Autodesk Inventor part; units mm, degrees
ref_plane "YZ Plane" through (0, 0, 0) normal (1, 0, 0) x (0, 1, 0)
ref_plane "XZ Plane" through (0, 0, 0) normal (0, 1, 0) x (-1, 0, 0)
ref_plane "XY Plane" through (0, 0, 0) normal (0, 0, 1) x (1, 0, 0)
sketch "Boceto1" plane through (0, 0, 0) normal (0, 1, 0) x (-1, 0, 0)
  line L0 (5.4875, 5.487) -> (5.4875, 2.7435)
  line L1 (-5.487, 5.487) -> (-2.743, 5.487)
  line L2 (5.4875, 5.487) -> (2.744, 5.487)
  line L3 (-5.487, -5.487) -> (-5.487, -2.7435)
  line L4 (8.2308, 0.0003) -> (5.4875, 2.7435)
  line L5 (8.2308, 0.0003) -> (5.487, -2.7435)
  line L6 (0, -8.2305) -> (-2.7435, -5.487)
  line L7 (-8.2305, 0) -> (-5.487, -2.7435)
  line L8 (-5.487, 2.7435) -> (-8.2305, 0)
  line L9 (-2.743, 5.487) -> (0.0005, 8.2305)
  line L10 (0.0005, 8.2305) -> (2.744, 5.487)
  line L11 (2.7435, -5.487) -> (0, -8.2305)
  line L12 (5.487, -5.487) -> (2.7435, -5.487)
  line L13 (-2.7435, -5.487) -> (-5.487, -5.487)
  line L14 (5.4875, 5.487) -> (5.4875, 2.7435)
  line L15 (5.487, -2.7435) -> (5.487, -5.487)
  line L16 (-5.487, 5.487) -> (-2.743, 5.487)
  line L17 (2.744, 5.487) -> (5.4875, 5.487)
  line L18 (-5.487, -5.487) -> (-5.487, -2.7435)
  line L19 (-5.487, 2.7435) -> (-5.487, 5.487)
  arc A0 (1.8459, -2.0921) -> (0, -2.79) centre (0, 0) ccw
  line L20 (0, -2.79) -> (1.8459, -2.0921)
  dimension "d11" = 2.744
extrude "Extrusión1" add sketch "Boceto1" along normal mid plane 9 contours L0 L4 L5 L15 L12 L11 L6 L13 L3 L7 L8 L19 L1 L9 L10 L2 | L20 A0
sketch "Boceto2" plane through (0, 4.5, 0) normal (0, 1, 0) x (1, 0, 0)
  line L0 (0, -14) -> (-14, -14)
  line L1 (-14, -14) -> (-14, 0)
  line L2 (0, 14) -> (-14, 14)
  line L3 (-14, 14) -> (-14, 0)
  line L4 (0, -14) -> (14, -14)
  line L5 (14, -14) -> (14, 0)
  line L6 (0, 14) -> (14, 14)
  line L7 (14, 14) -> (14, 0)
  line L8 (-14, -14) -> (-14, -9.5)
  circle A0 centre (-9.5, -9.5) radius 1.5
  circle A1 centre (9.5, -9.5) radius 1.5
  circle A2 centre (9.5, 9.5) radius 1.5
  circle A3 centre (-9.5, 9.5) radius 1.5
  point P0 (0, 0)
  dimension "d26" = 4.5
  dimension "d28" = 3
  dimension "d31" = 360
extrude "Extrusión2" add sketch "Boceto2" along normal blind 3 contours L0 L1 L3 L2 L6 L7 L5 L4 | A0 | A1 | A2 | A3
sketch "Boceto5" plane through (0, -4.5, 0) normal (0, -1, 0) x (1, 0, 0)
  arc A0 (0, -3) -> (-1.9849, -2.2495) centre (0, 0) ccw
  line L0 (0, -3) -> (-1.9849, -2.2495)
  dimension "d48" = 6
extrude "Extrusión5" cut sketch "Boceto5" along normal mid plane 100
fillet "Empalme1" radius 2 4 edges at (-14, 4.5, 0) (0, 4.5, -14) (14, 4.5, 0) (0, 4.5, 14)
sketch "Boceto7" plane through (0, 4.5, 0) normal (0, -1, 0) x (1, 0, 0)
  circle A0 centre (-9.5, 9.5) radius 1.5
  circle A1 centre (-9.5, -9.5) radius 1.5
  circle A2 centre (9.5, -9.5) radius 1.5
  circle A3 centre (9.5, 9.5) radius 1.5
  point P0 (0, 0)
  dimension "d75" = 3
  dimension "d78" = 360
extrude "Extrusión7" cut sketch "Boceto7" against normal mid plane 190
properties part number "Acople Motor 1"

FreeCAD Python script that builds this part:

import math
import FreeCAD as App
import Part
import Sketcher

V = App.Vector
Q = App.Units.Quantity


def edges_at(feature, points):
    """Names of the edges that pass closest to the given points."""
    edges = feature.Shape.Edges
    near = lambda p: min(range(len(edges)), key=lambda i: edges[i].distToShape(Part.Vertex(*p))[0])
    return sorted({f"Edge{near(p) + 1}" for p in points})


def add_polygon(sketch, points):
    """Adds a closed chain of lines whose ends are joined by coincident constraints."""
    first, n = sketch.GeometryCount, len(points)
    for a, b in zip(points, points[1:] + points[:1]):
        sketch.addGeometry(Part.LineSegment(App.Vector(*a, 0), App.Vector(*b, 0)), False)
    for i in range(n):
        sketch.addConstraint(Sketcher.Constraint("Coincident", first + i, 2, first + (i + 1) % n, 1))

doc = App.newDocument("Part")
body = doc.addObject("PartDesign::Body", "Body")

sketch1 = body.newObject("Sketcher::SketchObject", "Sketch")
sketch1.AttachmentSupport = (doc.getObject("XZ_Plane"), [""])
sketch1.MapMode = "FlatFace"
add_polygon(sketch1, [(-5.5, 2.7), (-5.5, 5.5), (-2.7, 5.5), (0, 8.2), (2.7, 5.5), (5.5, 5.5), (5.5, 2.7), (8.2, 0), (5.5, -2.7), (5.5, -5.5), (2.7, -5.5), (0, -8.2), (-2.7, -5.5), (-5.5, -5.5), (-5.5, -2.7), (-8.2, 0)])
sketch1.addConstraint([
    Sketcher.Constraint("Vertical", 0),
    Sketcher.Constraint("Horizontal", 1),
    Sketcher.Constraint("Horizontal", 4),
    Sketcher.Constraint("Vertical", 5),
    Sketcher.Constraint("Vertical", 8),
    Sketcher.Constraint("Horizontal", 9),
    Sketcher.Constraint("Horizontal", 12),
    Sketcher.Constraint("Vertical", 13),
    Sketcher.Constraint("Symmetric", 4, 2, 12, 2, -1, 1),
    Sketcher.Constraint("Symmetric", 9, 2, 11, 2, -2),
    Sketcher.Constraint("Symmetric", 7, 2, 13, 2, -2),
    Sketcher.Constraint("PointOnObject", 6, 2, -1),
    Sketcher.Constraint("PointOnObject", 10, 2, -2),
    Sketcher.Constraint("Perpendicular", 2, 3),
    Sketcher.Constraint("Parallel", 3, 6),
    Sketcher.Constraint("Perpendicular", 6, 7),
    Sketcher.Constraint("Parallel", 7, 10),
    Sketcher.Constraint("Perpendicular", 10, 11),
    Sketcher.Constraint("Parallel", 11, 14),
    Sketcher.Constraint("Perpendicular", 14, 15),
    Sketcher.Constraint("Horizontal", 1, 2, 3, 2),
    Sketcher.Constraint("Horizontal", 5, 2, 15, 2),
    Sketcher.Constraint("Equal", 1, 9),
    Sketcher.Constraint("Equal", 12, 0),
    Sketcher.Constraint("Equal", 3, 6),
    Sketcher.Constraint("Equal", 7, 10),
    Sketcher.Constraint("DistanceX", 4, 1, 4, 2, Q("2.744 mm")),
    Sketcher.Constraint("DistanceX", 1, 1, 1, 2, Q("2.7435 mm")),
    Sketcher.Constraint("DistanceX", 1, 2, -1, 1, Q("2.744 mm")),
])
pad1 = body.newObject("PartDesign::Pad", "Pad")
pad1.Profile = sketch1
pad1.Length = 9
pad1.Midplane = True

sketch2 = body.newObject("Sketcher::SketchObject", "Sketch001")
sketch2.AttachmentSupport = (doc.getObject("XZ_Plane"), [""])
sketch2.MapMode = "FlatFace"
sketch2.AttachmentOffset = App.Placement(V(0, 0, -4.5), App.Rotation())
add_polygon(sketch2, [(-14, 14), (14, 14), (14, -14), (-14, -14)])
sketch2.addConstraint([
    Sketcher.Constraint("Horizontal", 0),
    Sketcher.Constraint("Vertical", 1),
    Sketcher.Constraint("Horizontal", 2),
    Sketcher.Constraint("Vertical", 3),
    Sketcher.Constraint("Symmetric", 0, 2, 2, 2, -1, 1),
    Sketcher.Constraint("Equal", 2, 1),
    Sketcher.Constraint("DistanceX", 0, 1, 0, 2, Q("28 mm")),
])
pad2 = body.newObject("PartDesign::Pad", "Pad001")
pad2.Profile = sketch2
pad2.Length = 3
pad2.Reversed = True

sketch3 = body.newObject("Sketcher::SketchObject", "Sketch002")
sketch3.AttachmentSupport = (doc.getObject("XZ_Plane"), [""])
sketch3.MapMode = "FlatFace"
sketch3.AttachmentOffset = App.Placement(V(0, 0, 4.5), App.Rotation())
sketch3.addGeometry([
    Part.LineSegment(V(-2, -2.2, 0), V(0, -3, 0)),
    Part.ArcOfCircle(Part.Circle(V(0, 0, 0), V(0, 0, 1), 3), math.radians(-90), math.radians(229)),
], False)
sketch3.addConstraint([
    Sketcher.Constraint("Coincident", 0, 1, 1, 2),
    Sketcher.Constraint("Coincident", 1, 1, 0, 2),
    Sketcher.Constraint("Coincident", 1, 3, -1, 1),
    Sketcher.Constraint("PointOnObject", 1, 1, -2),
    Sketcher.Constraint("Radius", 1, Q("3 mm")),
    Sketcher.Constraint("Distance", 0, Q("2.122 mm")),
])
pocket1 = body.newObject("PartDesign::Pocket", "Pocket")
pocket1.Profile = sketch3
pocket1.Length = 100
pocket1.Midplane = True
doc.recompute()

fillet = body.newObject("PartDesign::Fillet", "Fillet")
fillet.Base = (pocket1, edges_at(pocket1, [
    (-14, 4.5, 0),
    (0, 4.5, -14),
    (14, 4.5, 0),
    (0, 4.5, 14),
]))
fillet.Radius = 2

sketch4 = body.newObject("Sketcher::SketchObject", "Sketch003")
sketch4.AttachmentSupport = (doc.getObject("XZ_Plane"), [""])
sketch4.MapMode = "FlatFace"
sketch4.AttachmentOffset = App.Placement(V(0, 0, -4.5), App.Rotation())
sketch4.addGeometry([
    Part.Circle(V(-9.5, 9.5, 0), V(0, 0, 1), 1.5),
    Part.Circle(V(-9.5, -9.5, 0), V(0, 0, 1), 1.5),
    Part.Circle(V(9.5, -9.5, 0), V(0, 0, 1), 1.5),
    Part.Circle(V(9.5, 9.5, 0), V(0, 0, 1), 1.5),
], False)
sketch4.addConstraint([
    Sketcher.Constraint("Equal", 0, 1),
    Sketcher.Constraint("Equal", 1, 2),
    Sketcher.Constraint("Equal", 2, 3),
    Sketcher.Constraint("Symmetric", 0, 3, 2, 3, -1, 1),
    Sketcher.Constraint("Symmetric", 1, 3, 3, 3, -1, 1),
    Sketcher.Constraint("Symmetric", 1, 3, 2, 3, -2),
    Sketcher.Constraint("Diameter", 0, Q("3 mm")),
    Sketcher.Constraint("DistanceY", 1, 3, 0, 3, Q("19 mm")),
    Sketcher.Constraint("DistanceX", 1, 3, 2, 3, Q("19 mm")),
])
pocket2 = body.newObject("PartDesign::Pocket", "Pocket001")
pocket2.Profile = sketch4
pocket2.Length = 190
pocket2.Midplane = True

doc.recompute()
